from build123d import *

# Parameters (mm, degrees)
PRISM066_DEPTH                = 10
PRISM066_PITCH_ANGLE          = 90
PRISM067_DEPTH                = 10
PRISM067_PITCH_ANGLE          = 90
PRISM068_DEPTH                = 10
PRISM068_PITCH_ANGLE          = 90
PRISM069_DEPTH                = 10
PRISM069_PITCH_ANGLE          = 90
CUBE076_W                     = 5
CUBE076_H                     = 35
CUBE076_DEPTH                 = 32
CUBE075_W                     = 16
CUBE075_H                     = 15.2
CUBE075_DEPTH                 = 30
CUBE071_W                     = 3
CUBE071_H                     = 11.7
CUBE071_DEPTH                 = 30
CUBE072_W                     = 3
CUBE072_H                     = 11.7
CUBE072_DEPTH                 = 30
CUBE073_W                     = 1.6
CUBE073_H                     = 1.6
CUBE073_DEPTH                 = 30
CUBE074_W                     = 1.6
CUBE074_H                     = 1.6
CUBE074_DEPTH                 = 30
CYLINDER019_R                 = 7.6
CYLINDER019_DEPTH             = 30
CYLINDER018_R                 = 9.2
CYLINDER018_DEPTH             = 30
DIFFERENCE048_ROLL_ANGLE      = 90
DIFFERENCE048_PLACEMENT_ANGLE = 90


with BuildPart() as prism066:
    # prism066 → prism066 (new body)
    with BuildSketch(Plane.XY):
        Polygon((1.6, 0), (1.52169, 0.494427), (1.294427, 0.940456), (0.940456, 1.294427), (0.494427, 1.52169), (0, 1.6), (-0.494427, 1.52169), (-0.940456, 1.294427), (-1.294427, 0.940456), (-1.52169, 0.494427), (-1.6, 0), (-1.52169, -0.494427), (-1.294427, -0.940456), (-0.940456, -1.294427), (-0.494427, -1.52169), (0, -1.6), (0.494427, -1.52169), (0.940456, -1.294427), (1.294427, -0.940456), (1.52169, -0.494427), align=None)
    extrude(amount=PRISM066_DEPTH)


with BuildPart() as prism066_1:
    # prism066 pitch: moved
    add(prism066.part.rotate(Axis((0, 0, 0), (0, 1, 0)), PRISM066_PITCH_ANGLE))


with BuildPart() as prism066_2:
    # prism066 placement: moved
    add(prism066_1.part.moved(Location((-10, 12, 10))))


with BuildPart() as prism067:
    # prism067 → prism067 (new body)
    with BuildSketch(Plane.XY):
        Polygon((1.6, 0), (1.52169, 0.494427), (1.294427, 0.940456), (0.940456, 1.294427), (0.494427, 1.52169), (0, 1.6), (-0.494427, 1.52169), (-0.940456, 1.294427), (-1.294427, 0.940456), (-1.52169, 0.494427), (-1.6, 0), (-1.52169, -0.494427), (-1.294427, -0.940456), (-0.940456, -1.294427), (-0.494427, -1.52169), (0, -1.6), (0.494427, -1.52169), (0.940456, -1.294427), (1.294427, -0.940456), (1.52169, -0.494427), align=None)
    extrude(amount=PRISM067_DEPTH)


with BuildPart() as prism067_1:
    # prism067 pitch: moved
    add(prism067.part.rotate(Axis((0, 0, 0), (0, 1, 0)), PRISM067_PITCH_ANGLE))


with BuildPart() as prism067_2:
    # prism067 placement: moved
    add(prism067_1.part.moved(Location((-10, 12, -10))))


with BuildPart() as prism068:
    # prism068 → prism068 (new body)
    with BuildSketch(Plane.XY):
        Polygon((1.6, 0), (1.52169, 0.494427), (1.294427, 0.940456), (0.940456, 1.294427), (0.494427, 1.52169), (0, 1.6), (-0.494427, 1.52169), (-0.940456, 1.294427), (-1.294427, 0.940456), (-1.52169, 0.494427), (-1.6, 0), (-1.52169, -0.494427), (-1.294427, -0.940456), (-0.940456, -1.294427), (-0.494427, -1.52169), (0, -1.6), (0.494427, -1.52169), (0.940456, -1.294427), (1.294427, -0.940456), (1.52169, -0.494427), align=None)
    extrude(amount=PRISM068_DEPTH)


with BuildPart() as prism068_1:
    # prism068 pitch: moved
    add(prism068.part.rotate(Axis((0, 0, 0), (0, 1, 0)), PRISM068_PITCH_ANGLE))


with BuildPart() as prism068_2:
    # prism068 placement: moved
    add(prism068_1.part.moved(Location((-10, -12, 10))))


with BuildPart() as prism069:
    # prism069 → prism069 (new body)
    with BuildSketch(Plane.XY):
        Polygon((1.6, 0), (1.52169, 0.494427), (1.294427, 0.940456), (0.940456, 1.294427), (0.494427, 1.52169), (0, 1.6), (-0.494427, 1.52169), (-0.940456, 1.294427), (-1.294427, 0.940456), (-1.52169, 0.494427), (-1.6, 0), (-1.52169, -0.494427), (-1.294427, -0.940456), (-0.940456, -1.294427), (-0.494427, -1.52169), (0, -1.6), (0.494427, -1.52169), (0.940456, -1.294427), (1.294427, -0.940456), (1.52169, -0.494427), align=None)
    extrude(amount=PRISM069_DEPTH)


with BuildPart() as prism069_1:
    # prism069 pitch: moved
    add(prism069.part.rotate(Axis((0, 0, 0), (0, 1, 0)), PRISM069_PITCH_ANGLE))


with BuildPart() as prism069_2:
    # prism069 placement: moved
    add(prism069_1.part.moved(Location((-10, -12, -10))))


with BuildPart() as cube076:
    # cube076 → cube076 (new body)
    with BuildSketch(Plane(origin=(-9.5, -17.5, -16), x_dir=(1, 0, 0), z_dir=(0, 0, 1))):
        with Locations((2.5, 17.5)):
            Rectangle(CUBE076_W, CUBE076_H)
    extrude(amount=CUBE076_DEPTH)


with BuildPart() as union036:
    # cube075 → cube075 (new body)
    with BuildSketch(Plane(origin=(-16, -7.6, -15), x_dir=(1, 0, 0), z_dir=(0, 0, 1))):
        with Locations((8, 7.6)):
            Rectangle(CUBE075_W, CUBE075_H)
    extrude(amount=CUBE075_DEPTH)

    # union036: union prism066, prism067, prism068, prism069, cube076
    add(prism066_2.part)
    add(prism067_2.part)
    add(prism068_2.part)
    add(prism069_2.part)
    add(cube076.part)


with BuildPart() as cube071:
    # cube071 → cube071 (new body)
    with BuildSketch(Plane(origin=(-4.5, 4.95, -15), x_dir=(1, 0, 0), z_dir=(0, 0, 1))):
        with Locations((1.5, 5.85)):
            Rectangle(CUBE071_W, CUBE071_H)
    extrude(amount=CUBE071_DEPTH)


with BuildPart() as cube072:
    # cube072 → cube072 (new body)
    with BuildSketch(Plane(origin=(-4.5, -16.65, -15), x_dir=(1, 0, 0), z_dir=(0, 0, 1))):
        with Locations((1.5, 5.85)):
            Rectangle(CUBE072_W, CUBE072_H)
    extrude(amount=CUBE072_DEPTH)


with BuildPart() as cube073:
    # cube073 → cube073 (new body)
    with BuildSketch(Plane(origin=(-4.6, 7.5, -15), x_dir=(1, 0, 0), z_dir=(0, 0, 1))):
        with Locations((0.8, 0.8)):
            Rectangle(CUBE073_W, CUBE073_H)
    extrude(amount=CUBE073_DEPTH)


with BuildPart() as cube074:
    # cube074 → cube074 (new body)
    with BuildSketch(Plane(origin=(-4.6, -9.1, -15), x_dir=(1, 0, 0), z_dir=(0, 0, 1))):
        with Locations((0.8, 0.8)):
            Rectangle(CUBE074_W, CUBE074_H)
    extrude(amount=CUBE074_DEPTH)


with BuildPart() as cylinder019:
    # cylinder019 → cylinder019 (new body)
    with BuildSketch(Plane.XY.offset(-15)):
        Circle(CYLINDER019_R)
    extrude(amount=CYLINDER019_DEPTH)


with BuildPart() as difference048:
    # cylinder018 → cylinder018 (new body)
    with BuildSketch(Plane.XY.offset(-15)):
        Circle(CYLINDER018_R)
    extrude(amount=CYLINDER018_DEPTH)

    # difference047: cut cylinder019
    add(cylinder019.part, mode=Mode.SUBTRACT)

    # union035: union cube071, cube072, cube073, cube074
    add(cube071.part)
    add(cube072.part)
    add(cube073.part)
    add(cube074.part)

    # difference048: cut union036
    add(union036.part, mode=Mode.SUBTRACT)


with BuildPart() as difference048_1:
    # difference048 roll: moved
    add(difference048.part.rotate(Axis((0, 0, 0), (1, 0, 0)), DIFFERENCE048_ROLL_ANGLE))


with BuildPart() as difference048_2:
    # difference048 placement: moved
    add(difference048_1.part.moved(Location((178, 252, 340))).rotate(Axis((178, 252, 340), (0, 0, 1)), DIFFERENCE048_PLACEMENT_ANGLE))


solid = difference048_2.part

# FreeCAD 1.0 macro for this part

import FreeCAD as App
import Part
import Sketcher

V = App.Vector
Q = App.Units.Quantity

doc = App.newDocument("Part")
body = doc.addObject("PartDesign::Body", "Body")

sketch1 = body.newObject("Sketcher::SketchObject", "Sketch")
sketch1.AttachmentSupport = (doc.getObject("XY_Plane"), [""])
sketch1.MapMode = "FlatFace"
sketch1.addGeometry(Part.LineSegment(V(1.6, 0, 0), V(1.52169, 0.494427, 0)), False)
sketch1.addGeometry(Part.LineSegment(V(1.52169, 0.494427, 0), V(1.294427, 0.940456, 0)), False)
sketch1.addGeometry(Part.LineSegment(V(1.294427, 0.940456, 0), V(0.940456, 1.294427, 0)), False)
sketch1.addGeometry(Part.LineSegment(V(0.940456, 1.294427, 0), V(0.494427, 1.52169, 0)), False)
sketch1.addGeometry(Part.LineSegment(V(0.494427, 1.52169, 0), V(0, 1.6, 0)), False)
sketch1.addGeometry(Part.LineSegment(V(0, 1.6, 0), V(-0.494427, 1.52169, 0)), False)
sketch1.addGeometry(Part.LineSegment(V(-0.494427, 1.52169, 0), V(-0.940456, 1.294427, 0)), False)
sketch1.addGeometry(Part.LineSegment(V(-0.940456, 1.294427, 0), V(-1.294427, 0.940456, 0)), False)
sketch1.addGeometry(Part.LineSegment(V(-1.294427, 0.940456, 0), V(-1.52169, 0.494427, 0)), False)
sketch1.addGeometry(Part.LineSegment(V(-1.52169, 0.494427, 0), V(-1.6, 0, 0)), False)
sketch1.addGeometry(Part.LineSegment(V(-1.6, 0, 0), V(-1.52169, -0.494427, 0)), False)
sketch1.addGeometry(Part.LineSegment(V(-1.52169, -0.494427, 0), V(-1.294427, -0.940456, 0)), False)
sketch1.addGeometry(Part.LineSegment(V(-1.294427, -0.940456, 0), V(-0.940456, -1.294427, 0)), False)
sketch1.addGeometry(Part.LineSegment(V(-0.940456, -1.294427, 0), V(-0.494427, -1.52169, 0)), False)
sketch1.addGeometry(Part.LineSegment(V(-0.494427, -1.52169, 0), V(0, -1.6, 0)), False)
sketch1.addGeometry(Part.LineSegment(V(0, -1.6, 0), V(0.494427, -1.52169, 0)), False)
sketch1.addGeometry(Part.LineSegment(V(0.494427, -1.52169, 0), V(0.940456, -1.294427, 0)), False)
sketch1.addGeometry(Part.LineSegment(V(0.940456, -1.294427, 0), V(1.294427, -0.940456, 0)), False)
sketch1.addGeometry(Part.LineSegment(V(1.294427, -0.940456, 0), V(1.52169, -0.494427, 0)), False)
sketch1.addGeometry(Part.LineSegment(V(1.52169, -0.494427, 0), V(1.6, 0, 0)), False)
sketch1.addConstraint(Sketcher.Constraint("Coincident", 0, 2, 1, 1))
sketch1.addConstraint(Sketcher.Constraint("Coincident", 1, 2, 2, 1))
sketch1.addConstraint(Sketcher.Constraint("Coincident", 2, 2, 3, 1))
sketch1.addConstraint(Sketcher.Constraint("Coincident", 3, 2, 4, 1))
sketch1.addConstraint(Sketcher.Constraint("Coincident", 4, 2, 5, 1))
sketch1.addConstraint(Sketcher.Constraint("Coincident", 5, 2, 6, 1))
sketch1.addConstraint(Sketcher.Constraint("Coincident", 6, 2, 7, 1))
sketch1.addConstraint(Sketcher.Constraint("Coincident", 7, 2, 8, 1))
sketch1.addConstraint(Sketcher.Constraint("Coincident", 8, 2, 9, 1))
sketch1.addConstraint(Sketcher.Constraint("Coincident", 9, 2, 10, 1))
sketch1.addConstraint(Sketcher.Constraint("Coincident", 10, 2, 11, 1))
sketch1.addConstraint(Sketcher.Constraint("Coincident", 11, 2, 12, 1))
sketch1.addConstraint(Sketcher.Constraint("Coincident", 12, 2, 13, 1))
sketch1.addConstraint(Sketcher.Constraint("Coincident", 13, 2, 14, 1))
sketch1.addConstraint(Sketcher.Constraint("Coincident", 14, 2, 15, 1))
sketch1.addConstraint(Sketcher.Constraint("Coincident", 15, 2, 16, 1))
sketch1.addConstraint(Sketcher.Constraint("Coincident", 16, 2, 17, 1))
sketch1.addConstraint(Sketcher.Constraint("Coincident", 17, 2, 18, 1))
sketch1.addConstraint(Sketcher.Constraint("Coincident", 18, 2, 19, 1))
sketch1.addConstraint(Sketcher.Constraint("Coincident", 19, 2, 0, 1))
sketch1.addConstraint(Sketcher.Constraint("Symmetric", 0, 2, 10, 2, -1, 1))
sketch1.addConstraint(Sketcher.Constraint("Symmetric", 1, 2, 11, 2, -1, 1))
sketch1.addConstraint(Sketcher.Constraint("Symmetric", 2, 2, 12, 2, -1, 1))
sketch1.addConstraint(Sketcher.Constraint("Symmetric", 3, 2, 13, 2, -1, 1))
sketch1.addConstraint(Sketcher.Constraint("Symmetric", 4, 2, 14, 2, -1, 1))
sketch1.addConstraint(Sketcher.Constraint("Symmetric", 5, 2, 15, 2, -1, 1))
sketch1.addConstraint(Sketcher.Constraint("Symmetric", 6, 2, 16, 2, -1, 1))
sketch1.addConstraint(Sketcher.Constraint("Symmetric", 7, 2, 17, 2, -1, 1))
sketch1.addConstraint(Sketcher.Constraint("Symmetric", 8, 2, 18, 2, -1, 1))
sketch1.addConstraint(Sketcher.Constraint("Symmetric", 9, 2, 19, 2, -1, 1))
sketch1.addConstraint(Sketcher.Constraint("Symmetric", 3, 2, 5, 2, -2))
sketch1.addConstraint(Sketcher.Constraint("Symmetric", 2, 2, 6, 2, -2))
sketch1.addConstraint(Sketcher.Constraint("Symmetric", 1, 2, 7, 2, -2))
sketch1.addConstraint(Sketcher.Constraint("Symmetric", 0, 2, 8, 2, -2))
sketch1.addConstraint(Sketcher.Constraint("PointOnObject", 4, 2, -2))
sketch1.addConstraint(Sketcher.Constraint("PointOnObject", 9, 2, -1))
sketch1.addConstraint(Sketcher.Constraint("Perpendicular", 0, 5))
sketch1.addConstraint(Sketcher.Constraint("Perpendicular", 1, 6))
sketch1.addConstraint(Sketcher.Constraint("Perpendicular", 2, 7))
sketch1.addConstraint(Sketcher.Constraint("Equal", 0, 1))
sketch1.addConstraint(Sketcher.Constraint("Equal", 1, 2))
sketch1.addConstraint(Sketcher.Constraint("Equal", 2, 3))
sketch1.addConstraint(Sketcher.Constraint("Equal", 3, 4))
sketch1.addConstraint(Sketcher.Constraint("Angle", 1, Q("116.999987 deg")))
sketch1.addConstraint(Sketcher.Constraint("DistanceY", -1, 1, 4, 2, Q("1.6 mm")))
sketch1.addConstraint(Sketcher.Constraint("DistanceY", 0, 2, 2, 2, Q("0.8 mm")))
pad1 = body.newObject("PartDesign::Pad", "Pad")
pad1.Profile = sketch1
pad1.Length = 10
body2 = doc.addObject("PartDesign::Body", "Body001")
doc.recompute()

body.Placement = App.Placement(V(0, 0, 0), App.Rotation(V(0, 1, 0), 90))
boolean = body2.newObject("PartDesign::Boolean", "Boolean")
boolean.Type = "Fuse"
boolean.addObjects([body])
body3 = doc.addObject("PartDesign::Body", "Body002")
doc.recompute()

body2.Placement = App.Placement(V(-10, 12, 10), App.Rotation(V(0, 0, 1), 0))
boolean2 = body3.newObject("PartDesign::Boolean", "Boolean001")
boolean2.Type = "Fuse"
boolean2.addObjects([body2])
body4 = doc.addObject("PartDesign::Body", "Body003")

sketch2 = body4.newObject("Sketcher::SketchObject", "Sketch001")
sketch2.AttachmentSupport = (doc.getObject("XY_Plane003"), [""])
sketch2.MapMode = "FlatFace"
sketch2.addGeometry(Part.LineSegment(V(1.6, 0, 0), V(1.52169, 0.494427, 0)), False)
sketch2.addGeometry(Part.LineSegment(V(1.52169, 0.494427, 0), V(1.294427, 0.940456, 0)), False)
sketch2.addGeometry(Part.LineSegment(V(1.294427, 0.940456, 0), V(0.940456, 1.294427, 0)), False)
sketch2.addGeometry(Part.LineSegment(V(0.940456, 1.294427, 0), V(0.494427, 1.52169, 0)), False)
sketch2.addGeometry(Part.LineSegment(V(0.494427, 1.52169, 0), V(0, 1.6, 0)), False)
sketch2.addGeometry(Part.LineSegment(V(0, 1.6, 0), V(-0.494427, 1.52169, 0)), False)
sketch2.addGeometry(Part.LineSegment(V(-0.494427, 1.52169, 0), V(-0.940456, 1.294427, 0)), False)
sketch2.addGeometry(Part.LineSegment(V(-0.940456, 1.294427, 0), V(-1.294427, 0.940456, 0)), False)
sketch2.addGeometry(Part.LineSegment(V(-1.294427, 0.940456, 0), V(-1.52169, 0.494427, 0)), False)
sketch2.addGeometry(Part.LineSegment(V(-1.52169, 0.494427, 0), V(-1.6, 0, 0)), False)
sketch2.addGeometry(Part.LineSegment(V(-1.6, 0, 0), V(-1.52169, -0.494427, 0)), False)
sketch2.addGeometry(Part.LineSegment(V(-1.52169, -0.494427, 0), V(-1.294427, -0.940456, 0)), False)
sketch2.addGeometry(Part.LineSegment(V(-1.294427, -0.940456, 0), V(-0.940456, -1.294427, 0)), False)
sketch2.addGeometry(Part.LineSegment(V(-0.940456, -1.294427, 0), V(-0.494427, -1.52169, 0)), False)
sketch2.addGeometry(Part.LineSegment(V(-0.494427, -1.52169, 0), V(0, -1.6, 0)), False)
sketch2.addGeometry(Part.LineSegment(V(0, -1.6, 0), V(0.494427, -1.52169, 0)), False)
sketch2.addGeometry(Part.LineSegment(V(0.494427, -1.52169, 0), V(0.940456, -1.294427, 0)), False)
sketch2.addGeometry(Part.LineSegment(V(0.940456, -1.294427, 0), V(1.294427, -0.940456, 0)), False)
sketch2.addGeometry(Part.LineSegment(V(1.294427, -0.940456, 0), V(1.52169, -0.494427, 0)), False)
sketch2.addGeometry(Part.LineSegment(V(1.52169, -0.494427, 0), V(1.6, 0, 0)), False)
sketch2.addConstraint(Sketcher.Constraint("Coincident", 0, 2, 1, 1))
sketch2.addConstraint(Sketcher.Constraint("Coincident", 1, 2, 2, 1))
sketch2.addConstraint(Sketcher.Constraint("Coincident", 2, 2, 3, 1))
sketch2.addConstraint(Sketcher.Constraint("Coincident", 3, 2, 4, 1))
sketch2.addConstraint(Sketcher.Constraint("Coincident", 4, 2, 5, 1))
sketch2.addConstraint(Sketcher.Constraint("Coincident", 5, 2, 6, 1))
sketch2.addConstraint(Sketcher.Constraint("Coincident", 6, 2, 7, 1))
sketch2.addConstraint(Sketcher.Constraint("Coincident", 7, 2, 8, 1))
sketch2.addConstraint(Sketcher.Constraint("Coincident", 8, 2, 9, 1))
sketch2.addConstraint(Sketcher.Constraint("Coincident", 9, 2, 10, 1))
sketch2.addConstraint(Sketcher.Constraint("Coincident", 10, 2, 11, 1))
sketch2.addConstraint(Sketcher.Constraint("Coincident", 11, 2, 12, 1))
sketch2.addConstraint(Sketcher.Constraint("Coincident", 12, 2, 13, 1))
sketch2.addConstraint(Sketcher.Constraint("Coincident", 13, 2, 14, 1))
sketch2.addConstraint(Sketcher.Constraint("Coincident", 14, 2, 15, 1))
sketch2.addConstraint(Sketcher.Constraint("Coincident", 15, 2, 16, 1))
sketch2.addConstraint(Sketcher.Constraint("Coincident", 16, 2, 17, 1))
sketch2.addConstraint(Sketcher.Constraint("Coincident", 17, 2, 18, 1))
sketch2.addConstraint(Sketcher.Constraint("Coincident", 18, 2, 19, 1))
sketch2.addConstraint(Sketcher.Constraint("Coincident", 19, 2, 0, 1))
sketch2.addConstraint(Sketcher.Constraint("Symmetric", 0, 2, 10, 2, -1, 1))
sketch2.addConstraint(Sketcher.Constraint("Symmetric", 1, 2, 11, 2, -1, 1))
sketch2.addConstraint(Sketcher.Constraint("Symmetric", 2, 2, 12, 2, -1, 1))
sketch2.addConstraint(Sketcher.Constraint("Symmetric", 3, 2, 13, 2, -1, 1))
sketch2.addConstraint(Sketcher.Constraint("Symmetric", 4, 2, 14, 2, -1, 1))
sketch2.addConstraint(Sketcher.Constraint("Symmetric", 5, 2, 15, 2, -1, 1))
sketch2.addConstraint(Sketcher.Constraint("Symmetric", 6, 2, 16, 2, -1, 1))
sketch2.addConstraint(Sketcher.Constraint("Symmetric", 7, 2, 17, 2, -1, 1))
sketch2.addConstraint(Sketcher.Constraint("Symmetric", 8, 2, 18, 2, -1, 1))
sketch2.addConstraint(Sketcher.Constraint("Symmetric", 9, 2, 19, 2, -1, 1))
sketch2.addConstraint(Sketcher.Constraint("Symmetric", 3, 2, 5, 2, -2))
sketch2.addConstraint(Sketcher.Constraint("Symmetric", 2, 2, 6, 2, -2))
sketch2.addConstraint(Sketcher.Constraint("Symmetric", 1, 2, 7, 2, -2))
sketch2.addConstraint(Sketcher.Constraint("Symmetric", 0, 2, 8, 2, -2))
sketch2.addConstraint(Sketcher.Constraint("PointOnObject", 4, 2, -2))
sketch2.addConstraint(Sketcher.Constraint("PointOnObject", 9, 2, -1))
sketch2.addConstraint(Sketcher.Constraint("Perpendicular", 0, 5))
sketch2.addConstraint(Sketcher.Constraint("Perpendicular", 1, 6))
sketch2.addConstraint(Sketcher.Constraint("Perpendicular", 2, 7))
sketch2.addConstraint(Sketcher.Constraint("Equal", 0, 1))
sketch2.addConstraint(Sketcher.Constraint("Equal", 1, 2))
sketch2.addConstraint(Sketcher.Constraint("Equal", 2, 3))
sketch2.addConstraint(Sketcher.Constraint("Equal", 3, 4))
sketch2.addConstraint(Sketcher.Constraint("Angle", 1, Q("116.999987 deg")))
sketch2.addConstraint(Sketcher.Constraint("DistanceY", -1, 1, 4, 2, Q("1.6 mm")))
sketch2.addConstraint(Sketcher.Constraint("DistanceY", 0, 2, 2, 2, Q("0.8 mm")))
pad2 = body4.newObject("PartDesign::Pad", "Pad001")
pad2.Profile = sketch2
pad2.Length = 10
body5 = doc.addObject("PartDesign::Body", "Body004")
doc.recompute()

body4.Placement = App.Placement(V(0, 0, 0), App.Rotation(V(0, 1, 0), 90))
boolean3 = body5.newObject("PartDesign::Boolean", "Boolean002")
boolean3.Type = "Fuse"
boolean3.addObjects([body4])
body6 = doc.addObject("PartDesign::Body", "Body005")
doc.recompute()

body5.Placement = App.Placement(V(-10, 12, -10), App.Rotation(V(0, 0, 1), 0))
boolean4 = body6.newObject("PartDesign::Boolean", "Boolean003")
boolean4.Type = "Fuse"
boolean4.addObjects([body5])
body7 = doc.addObject("PartDesign::Body", "Body006")

sketch3 = body7.newObject("Sketcher::SketchObject", "Sketch002")
sketch3.AttachmentSupport = (doc.getObject("XY_Plane006"), [""])
sketch3.MapMode = "FlatFace"
sketch3.addGeometry(Part.LineSegment(V(1.6, 0, 0), V(1.52169, 0.494427, 0)), False)
sketch3.addGeometry(Part.LineSegment(V(1.52169, 0.494427, 0), V(1.294427, 0.940456, 0)), False)
sketch3.addGeometry(Part.LineSegment(V(1.294427, 0.940456, 0), V(0.940456, 1.294427, 0)), False)
sketch3.addGeometry(Part.LineSegment(V(0.940456, 1.294427, 0), V(0.494427, 1.52169, 0)), False)
sketch3.addGeometry(Part.LineSegment(V(0.494427, 1.52169, 0), V(0, 1.6, 0)), False)
sketch3.addGeometry(Part.LineSegment(V(0, 1.6, 0), V(-0.494427, 1.52169, 0)), False)
sketch3.addGeometry(Part.LineSegment(V(-0.494427, 1.52169, 0), V(-0.940456, 1.294427, 0)), False)
sketch3.addGeometry(Part.LineSegment(V(-0.940456, 1.294427, 0), V(-1.294427, 0.940456, 0)), False)
sketch3.addGeometry(Part.LineSegment(V(-1.294427, 0.940456, 0), V(-1.52169, 0.494427, 0)), False)
sketch3.addGeometry(Part.LineSegment(V(-1.52169, 0.494427, 0), V(-1.6, 0, 0)), False)
sketch3.addGeometry(Part.LineSegment(V(-1.6, 0, 0), V(-1.52169, -0.494427, 0)), False)
sketch3.addGeometry(Part.LineSegment(V(-1.52169, -0.494427, 0), V(-1.294427, -0.940456, 0)), False)
sketch3.addGeometry(Part.LineSegment(V(-1.294427, -0.940456, 0), V(-0.940456, -1.294427, 0)), False)
sketch3.addGeometry(Part.LineSegment(V(-0.940456, -1.294427, 0), V(-0.494427, -1.52169, 0)), False)
sketch3.addGeometry(Part.LineSegment(V(-0.494427, -1.52169, 0), V(0, -1.6, 0)), False)
sketch3.addGeometry(Part.LineSegment(V(0, -1.6, 0), V(0.494427, -1.52169, 0)), False)
sketch3.addGeometry(Part.LineSegment(V(0.494427, -1.52169, 0), V(0.940456, -1.294427, 0)), False)
sketch3.addGeometry(Part.LineSegment(V(0.940456, -1.294427, 0), V(1.294427, -0.940456, 0)), False)
sketch3.addGeometry(Part.LineSegment(V(1.294427, -0.940456, 0), V(1.52169, -0.494427, 0)), False)
sketch3.addGeometry(Part.LineSegment(V(1.52169, -0.494427, 0), V(1.6, 0, 0)), False)
sketch3.addConstraint(Sketcher.Constraint("Coincident", 0, 2, 1, 1))
sketch3.addConstraint(Sketcher.Constraint("Coincident", 1, 2, 2, 1))
sketch3.addConstraint(Sketcher.Constraint("Coincident", 2, 2, 3, 1))
sketch3.addConstraint(Sketcher.Constraint("Coincident", 3, 2, 4, 1))
sketch3.addConstraint(Sketcher.Constraint("Coincident", 4, 2, 5, 1))
sketch3.addConstraint(Sketcher.Constraint("Coincident", 5, 2, 6, 1))
sketch3.addConstraint(Sketcher.Constraint("Coincident", 6, 2, 7, 1))
sketch3.addConstraint(Sketcher.Constraint("Coincident", 7, 2, 8, 1))
sketch3.addConstraint(Sketcher.Constraint("Coincident", 8, 2, 9, 1))
sketch3.addConstraint(Sketcher.Constraint("Coincident", 9, 2, 10, 1))
sketch3.addConstraint(Sketcher.Constraint("Coincident", 10, 2, 11, 1))
sketch3.addConstraint(Sketcher.Constraint("Coincident", 11, 2, 12, 1))
sketch3.addConstraint(Sketcher.Constraint("Coincident", 12, 2, 13, 1))
sketch3.addConstraint(Sketcher.Constraint("Coincident", 13, 2, 14, 1))
sketch3.addConstraint(Sketcher.Constraint("Coincident", 14, 2, 15, 1))
sketch3.addConstraint(Sketcher.Constraint("Coincident", 15, 2, 16, 1))
sketch3.addConstraint(Sketcher.Constraint("Coincident", 16, 2, 17, 1))
sketch3.addConstraint(Sketcher.Constraint("Coincident", 17, 2, 18, 1))
sketch3.addConstraint(Sketcher.Constraint("Coincident", 18, 2, 19, 1))
sketch3.addConstraint(Sketcher.Constraint("Coincident", 19, 2, 0, 1))
sketch3.addConstraint(Sketcher.Constraint("Symmetric", 0, 2, 10, 2, -1, 1))
sketch3.addConstraint(Sketcher.Constraint("Symmetric", 1, 2, 11, 2, -1, 1))
sketch3.addConstraint(Sketcher.Constraint("Symmetric", 2, 2, 12, 2, -1, 1))
sketch3.addConstraint(Sketcher.Constraint("Symmetric", 3, 2, 13, 2, -1, 1))
sketch3.addConstraint(Sketcher.Constraint("Symmetric", 4, 2, 14, 2, -1, 1))
sketch3.addConstraint(Sketcher.Constraint("Symmetric", 5, 2, 15, 2, -1, 1))
sketch3.addConstraint(Sketcher.Constraint("Symmetric", 6, 2, 16, 2, -1, 1))
sketch3.addConstraint(Sketcher.Constraint("Symmetric", 7, 2, 17, 2, -1, 1))
sketch3.addConstraint(Sketcher.Constraint("Symmetric", 8, 2, 18, 2, -1, 1))
sketch3.addConstraint(Sketcher.Constraint("Symmetric", 9, 2, 19, 2, -1, 1))
sketch3.addConstraint(Sketcher.Constraint("Symmetric", 3, 2, 5, 2, -2))
sketch3.addConstraint(Sketcher.Constraint("Symmetric", 2, 2, 6, 2, -2))
sketch3.addConstraint(Sketcher.Constraint("Symmetric", 1, 2, 7, 2, -2))
sketch3.addConstraint(Sketcher.Constraint("Symmetric", 0, 2, 8, 2, -2))
sketch3.addConstraint(Sketcher.Constraint("PointOnObject", 4, 2, -2))
sketch3.addConstraint(Sketcher.Constraint("PointOnObject", 9, 2, -1))
sketch3.addConstraint(Sketcher.Constraint("Perpendicular", 0, 5))
sketch3.addConstraint(Sketcher.Constraint("Perpendicular", 1, 6))
sketch3.addConstraint(Sketcher.Constraint("Perpendicular", 2, 7))
sketch3.addConstraint(Sketcher.Constraint("Equal", 0, 1))
sketch3.addConstraint(Sketcher.Constraint("Equal", 1, 2))
sketch3.addConstraint(Sketcher.Constraint("Equal", 2, 3))
sketch3.addConstraint(Sketcher.Constraint("Equal", 3, 4))
sketch3.addConstraint(Sketcher.Constraint("Angle", 1, Q("116.999987 deg")))
sketch3.addConstraint(Sketcher.Constraint("DistanceY", -1, 1, 4, 2, Q("1.6 mm")))
sketch3.addConstraint(Sketcher.Constraint("DistanceY", 0, 2, 2, 2, Q("0.8 mm")))
pad3 = body7.newObject("PartDesign::Pad", "Pad002")
pad3.Profile = sketch3
pad3.Length = 10
body8 = doc.addObject("PartDesign::Body", "Body007")
doc.recompute()

body7.Placement = App.Placement(V(0, 0, 0), App.Rotation(V(0, 1, 0), 90))
boolean5 = body8.newObject("PartDesign::Boolean", "Boolean004")
boolean5.Type = "Fuse"
boolean5.addObjects([body7])
body9 = doc.addObject("PartDesign::Body", "Body008")
doc.recompute()

body8.Placement = App.Placement(V(-10, -12, 10), App.Rotation(V(0, 0, 1), 0))
boolean6 = body9.newObject("PartDesign::Boolean", "Boolean005")
boolean6.Type = "Fuse"
boolean6.addObjects([body8])
body10 = doc.addObject("PartDesign::Body", "Body009")

sketch4 = body10.newObject("Sketcher::SketchObject", "Sketch003")
sketch4.AttachmentSupport = (doc.getObject("XY_Plane009"), [""])
sketch4.MapMode = "FlatFace"
sketch4.addGeometry(Part.LineSegment(V(1.6, 0, 0), V(1.52169, 0.494427, 0)), False)
sketch4.addGeometry(Part.LineSegment(V(1.52169, 0.494427, 0), V(1.294427, 0.940456, 0)), False)
sketch4.addGeometry(Part.LineSegment(V(1.294427, 0.940456, 0), V(0.940456, 1.294427, 0)), False)
sketch4.addGeometry(Part.LineSegment(V(0.940456, 1.294427, 0), V(0.494427, 1.52169, 0)), False)
sketch4.addGeometry(Part.LineSegment(V(0.494427, 1.52169, 0), V(0, 1.6, 0)), False)
sketch4.addGeometry(Part.LineSegment(V(0, 1.6, 0), V(-0.494427, 1.52169, 0)), False)
sketch4.addGeometry(Part.LineSegment(V(-0.494427, 1.52169, 0), V(-0.940456, 1.294427, 0)), False)
sketch4.addGeometry(Part.LineSegment(V(-0.940456, 1.294427, 0), V(-1.294427, 0.940456, 0)), False)
sketch4.addGeometry(Part.LineSegment(V(-1.294427, 0.940456, 0), V(-1.52169, 0.494427, 0)), False)
sketch4.addGeometry(Part.LineSegment(V(-1.52169, 0.494427, 0), V(-1.6, 0, 0)), False)
sketch4.addGeometry(Part.LineSegment(V(-1.6, 0, 0), V(-1.52169, -0.494427, 0)), False)
sketch4.addGeometry(Part.LineSegment(V(-1.52169, -0.494427, 0), V(-1.294427, -0.940456, 0)), False)
sketch4.addGeometry(Part.LineSegment(V(-1.294427, -0.940456, 0), V(-0.940456, -1.294427, 0)), False)
sketch4.addGeometry(Part.LineSegment(V(-0.940456, -1.294427, 0), V(-0.494427, -1.52169, 0)), False)
sketch4.addGeometry(Part.LineSegment(V(-0.494427, -1.52169, 0), V(0, -1.6, 0)), False)
sketch4.addGeometry(Part.LineSegment(V(0, -1.6, 0), V(0.494427, -1.52169, 0)), False)
sketch4.addGeometry(Part.LineSegment(V(0.494427, -1.52169, 0), V(0.940456, -1.294427, 0)), False)
sketch4.addGeometry(Part.LineSegment(V(0.940456, -1.294427, 0), V(1.294427, -0.940456, 0)), False)
sketch4.addGeometry(Part.LineSegment(V(1.294427, -0.940456, 0), V(1.52169, -0.494427, 0)), False)
sketch4.addGeometry(Part.LineSegment(V(1.52169, -0.494427, 0), V(1.6, 0, 0)), False)
sketch4.addConstraint(Sketcher.Constraint("Coincident", 0, 2, 1, 1))
sketch4.addConstraint(Sketcher.Constraint("Coincident", 1, 2, 2, 1))
sketch4.addConstraint(Sketcher.Constraint("Coincident", 2, 2, 3, 1))
sketch4.addConstraint(Sketcher.Constraint("Coincident", 3, 2, 4, 1))
sketch4.addConstraint(Sketcher.Constraint("Coincident", 4, 2, 5, 1))
sketch4.addConstraint(Sketcher.Constraint("Coincident", 5, 2, 6, 1))
sketch4.addConstraint(Sketcher.Constraint("Coincident", 6, 2, 7, 1))
sketch4.addConstraint(Sketcher.Constraint("Coincident", 7, 2, 8, 1))
sketch4.addConstraint(Sketcher.Constraint("Coincident", 8, 2, 9, 1))
sketch4.addConstraint(Sketcher.Constraint("Coincident", 9, 2, 10, 1))
sketch4.addConstraint(Sketcher.Constraint("Coincident", 10, 2, 11, 1))
sketch4.addConstraint(Sketcher.Constraint("Coincident", 11, 2, 12, 1))
sketch4.addConstraint(Sketcher.Constraint("Coincident", 12, 2, 13, 1))
sketch4.addConstraint(Sketcher.Constraint("Coincident", 13, 2, 14, 1))
sketch4.addConstraint(Sketcher.Constraint("Coincident", 14, 2, 15, 1))
sketch4.addConstraint(Sketcher.Constraint("Coincident", 15, 2, 16, 1))
sketch4.addConstraint(Sketcher.Constraint("Coincident", 16, 2, 17, 1))
sketch4.addConstraint(Sketcher.Constraint("Coincident", 17, 2, 18, 1))
sketch4.addConstraint(Sketcher.Constraint("Coincident", 18, 2, 19, 1))
sketch4.addConstraint(Sketcher.Constraint("Coincident", 19, 2, 0, 1))
sketch4.addConstraint(Sketcher.Constraint("Symmetric", 0, 2, 10, 2, -1, 1))
sketch4.addConstraint(Sketcher.Constraint("Symmetric", 1, 2, 11, 2, -1, 1))
sketch4.addConstraint(Sketcher.Constraint("Symmetric", 2, 2, 12, 2, -1, 1))
sketch4.addConstraint(Sketcher.Constraint("Symmetric", 3, 2, 13, 2, -1, 1))
sketch4.addConstraint(Sketcher.Constraint("Symmetric", 4, 2, 14, 2, -1, 1))
sketch4.addConstraint(Sketcher.Constraint("Symmetric", 5, 2, 15, 2, -1, 1))
sketch4.addConstraint(Sketcher.Constraint("Symmetric", 6, 2, 16, 2, -1, 1))
sketch4.addConstraint(Sketcher.Constraint("Symmetric", 7, 2, 17, 2, -1, 1))
sketch4.addConstraint(Sketcher.Constraint("Symmetric", 8, 2, 18, 2, -1, 1))
sketch4.addConstraint(Sketcher.Constraint("Symmetric", 9, 2, 19, 2, -1, 1))
sketch4.addConstraint(Sketcher.Constraint("Symmetric", 3, 2, 5, 2, -2))
sketch4.addConstraint(Sketcher.Constraint("Symmetric", 2, 2, 6, 2, -2))
sketch4.addConstraint(Sketcher.Constraint("Symmetric", 1, 2, 7, 2, -2))
sketch4.addConstraint(Sketcher.Constraint("Symmetric", 0, 2, 8, 2, -2))
sketch4.addConstraint(Sketcher.Constraint("PointOnObject", 4, 2, -2))
sketch4.addConstraint(Sketcher.Constraint("PointOnObject", 9, 2, -1))
sketch4.addConstraint(Sketcher.Constraint("Perpendicular", 0, 5))
sketch4.addConstraint(Sketcher.Constraint("Perpendicular", 1, 6))
sketch4.addConstraint(Sketcher.Constraint("Perpendicular", 2, 7))
sketch4.addConstraint(Sketcher.Constraint("Equal", 0, 1))
sketch4.addConstraint(Sketcher.Constraint("Equal", 1, 2))
sketch4.addConstraint(Sketcher.Constraint("Equal", 2, 3))
sketch4.addConstraint(Sketcher.Constraint("Equal", 3, 4))
sketch4.addConstraint(Sketcher.Constraint("Angle", 1, Q("116.999987 deg")))
sketch4.addConstraint(Sketcher.Constraint("DistanceY", -1, 1, 4, 2, Q("1.6 mm")))
sketch4.addConstraint(Sketcher.Constraint("DistanceY", 0, 2, 2, 2, Q("0.8 mm")))
pad4 = body10.newObject("PartDesign::Pad", "Pad003")
pad4.Profile = sketch4
pad4.Length = 10
body11 = doc.addObject("PartDesign::Body", "Body010")
doc.recompute()

body10.Placement = App.Placement(V(0, 0, 0), App.Rotation(V(0, 1, 0), 90))
boolean7 = body11.newObject("PartDesign::Boolean", "Boolean006")
boolean7.Type = "Fuse"
boolean7.addObjects([body10])
body12 = doc.addObject("PartDesign::Body", "Body011")
doc.recompute()

body11.Placement = App.Placement(V(-10, -12, -10), App.Rotation(V(0, 0, 1), 0))
boolean8 = body12.newObject("PartDesign::Boolean", "Boolean007")
boolean8.Type = "Fuse"
boolean8.addObjects([body11])
body13 = doc.addObject("PartDesign::Body", "Body012")

sketch5 = body13.newObject("Sketcher::SketchObject", "Sketch004")
sketch5.AttachmentSupport = (doc.getObject("XY_Plane012"), [""])
sketch5.MapMode = "FlatFace"
sketch5.AttachmentOffset = App.Placement(V(0, 0, -16), App.Rotation())
sketch5.addGeometry(Part.LineSegment(V(-9.5, 17.5, 0), V(-9.5, -17.5, 0)), False)
sketch5.addGeometry(Part.LineSegment(V(-9.5, -17.5, 0), V(-4.5, -17.5, 0)), False)
sketch5.addGeometry(Part.LineSegment(V(-4.5, -17.5, 0), V(-4.5, 17.5, 0)), False)
sketch5.addGeometry(Part.LineSegment(V(-4.5, 17.5, 0), V(-9.5, 17.5, 0)), False)
sketch5.addConstraint(Sketcher.Constraint("Coincident", 0, 2, 1, 1))
sketch5.addConstraint(Sketcher.Constraint("Coincident", 1, 2, 2, 1))
sketch5.addConstraint(Sketcher.Constraint("Coincident", 2, 2, 3, 1))
sketch5.addConstraint(Sketcher.Constraint("Coincident", 3, 2, 0, 1))
sketch5.addConstraint(Sketcher.Constraint("Vertical", 0))
sketch5.addConstraint(Sketcher.Constraint("Horizontal", 1))
sketch5.addConstraint(Sketcher.Constraint("Vertical", 2))
sketch5.addConstraint(Sketcher.Constraint("Horizontal", 3))
sketch5.addConstraint(Sketcher.Constraint("DistanceX", 1, 1, 1, 2, Q("5 mm")))
sketch5.addConstraint(Sketcher.Constraint("DistanceY", 0, 2, 0, 1, Q("35 mm")))
sketch5.addConstraint(Sketcher.Constraint("DistanceX", 0, 2, -1, 1, Q("9.5 mm")))
sketch5.addConstraint(Sketcher.Constraint("DistanceY", 0, 2, -1, 1, Q("17.5 mm")))
pad5 = body13.newObject("PartDesign::Pad", "Pad004")
pad5.Profile = sketch5
pad5.Length = 32
body14 = doc.addObject("PartDesign::Body", "Body013")
body14.AllowCompound = True

sketch6 = body14.newObject("Sketcher::SketchObject", "Sketch005")
sketch6.AttachmentSupport = (doc.getObject("XY_Plane013"), [""])
sketch6.MapMode = "FlatFace"
sketch6.AttachmentOffset = App.Placement(V(0, 0, -15), App.Rotation())
sketch6.addGeometry(Part.LineSegment(V(-16, 7.6, 0), V(-16, -7.6, 0)), False)
sketch6.addGeometry(Part.LineSegment(V(-16, -7.6, 0), V(0, -7.6, 0)), False)
sketch6.addGeometry(Part.LineSegment(V(0, -7.6, 0), V(0, 7.6, 0)), False)
sketch6.addGeometry(Part.LineSegment(V(0, 7.6, 0), V(-16, 7.6, 0)), False)
sketch6.addConstraint(Sketcher.Constraint("Coincident", 0, 2, 1, 1))
sketch6.addConstraint(Sketcher.Constraint("Coincident", 1, 2, 2, 1))
sketch6.addConstraint(Sketcher.Constraint("Coincident", 2, 2, 3, 1))
sketch6.addConstraint(Sketcher.Constraint("Coincident", 3, 2, 0, 1))
sketch6.addConstraint(Sketcher.Constraint("Vertical", 0))
sketch6.addConstraint(Sketcher.Constraint("Horizontal", 1))
sketch6.addConstraint(Sketcher.Constraint("Vertical", 2))
sketch6.addConstraint(Sketcher.Constraint("Horizontal", 3))
sketch6.addConstraint(Sketcher.Constraint("Symmetric", 1, 2, 2, 2, -1, 1))
sketch6.addConstraint(Sketcher.Constraint("DistanceX", 1, 1, 1, 2, Q("16 mm")))
sketch6.addConstraint(Sketcher.Constraint("DistanceY", 0, 2, 0, 1, Q("15.2 mm")))
pad6 = body14.newObject("PartDesign::Pad", "Pad005")
pad6.Profile = sketch6
pad6.Length = 30
doc.recompute()

boolean9 = body14.newObject("PartDesign::Boolean", "Boolean008")
boolean9.Type = "Fuse"
boolean9.addObjects([body3])
doc.recompute()

boolean10 = body14.newObject("PartDesign::Boolean", "Boolean009")
boolean10.Type = "Fuse"
boolean10.addObjects([body6])
doc.recompute()

boolean11 = body14.newObject("PartDesign::Boolean", "Boolean010")
boolean11.Type = "Fuse"
boolean11.addObjects([body9])
doc.recompute()

boolean12 = body14.newObject("PartDesign::Boolean", "Boolean011")
boolean12.Type = "Fuse"
boolean12.addObjects([body12])
doc.recompute()

boolean13 = body14.newObject("PartDesign::Boolean", "Boolean012")
boolean13.Type = "Fuse"
boolean13.addObjects([body13])
body15 = doc.addObject("PartDesign::Body", "Body014")

sketch7 = body15.newObject("Sketcher::SketchObject", "Sketch006")
sketch7.AttachmentSupport = (doc.getObject("XY_Plane014"), [""])
sketch7.MapMode = "FlatFace"
sketch7.AttachmentOffset = App.Placement(V(0, 0, -15), App.Rotation())
sketch7.addGeometry(Part.LineSegment(V(-4.5, 16.65, 0), V(-4.5, 4.95, 0)), False)
sketch7.addGeometry(Part.LineSegment(V(-4.5, 4.95, 0), V(-1.5, 4.95, 0)), False)
sketch7.addGeometry(Part.LineSegment(V(-1.5, 4.95, 0), V(-1.5, 16.65, 0)), False)
sketch7.addGeometry(Part.LineSegment(V(-1.5, 16.65, 0), V(-4.5, 16.65, 0)), False)
sketch7.addConstraint(Sketcher.Constraint("Coincident", 0, 2, 1, 1))
sketch7.addConstraint(Sketcher.Constraint("Coincident", 1, 2, 2, 1))
sketch7.addConstraint(Sketcher.Constraint("Coincident", 2, 2, 3, 1))
sketch7.addConstraint(Sketcher.Constraint("Coincident", 3, 2, 0, 1))
sketch7.addConstraint(Sketcher.Constraint("Vertical", 0))
sketch7.addConstraint(Sketcher.Constraint("Horizontal", 1))
sketch7.addConstraint(Sketcher.Constraint("Vertical", 2))
sketch7.addConstraint(Sketcher.Constraint("Horizontal", 3))
sketch7.addConstraint(Sketcher.Constraint("DistanceX", 1, 1, 1, 2, Q("3 mm")))
sketch7.addConstraint(Sketcher.Constraint("DistanceY", 0, 2, 0, 1, Q("11.7 mm")))
sketch7.addConstraint(Sketcher.Constraint("DistanceX", 0, 2, -1, 1, Q("4.5 mm")))
sketch7.addConstraint(Sketcher.Constraint("DistanceY", -1, 1, 0, 2, Q("4.95 mm")))
pad7 = body15.newObject("PartDesign::Pad", "Pad006")
pad7.Profile = sketch7
pad7.Length = 30
body16 = doc.addObject("PartDesign::Body", "Body015")

sketch8 = body16.newObject("Sketcher::SketchObject", "Sketch007")
sketch8.AttachmentSupport = (doc.getObject("XY_Plane015"), [""])
sketch8.MapMode = "FlatFace"
sketch8.AttachmentOffset = App.Placement(V(0, 0, -15), App.Rotation())
sketch8.addGeometry(Part.LineSegment(V(-4.5, -4.95, 0), V(-4.5, -16.65, 0)), False)
sketch8.addGeometry(Part.LineSegment(V(-4.5, -16.65, 0), V(-1.5, -16.65, 0)), False)
sketch8.addGeometry(Part.LineSegment(V(-1.5, -16.65, 0), V(-1.5, -4.95, 0)), False)
sketch8.addGeometry(Part.LineSegment(V(-1.5, -4.95, 0), V(-4.5, -4.95, 0)), False)
sketch8.addConstraint(Sketcher.Constraint("Coincident", 0, 2, 1, 1))
sketch8.addConstraint(Sketcher.Constraint("Coincident", 1, 2, 2, 1))
sketch8.addConstraint(Sketcher.Constraint("Coincident", 2, 2, 3, 1))
sketch8.addConstraint(Sketcher.Constraint("Coincident", 3, 2, 0, 1))
sketch8.addConstraint(Sketcher.Constraint("Vertical", 0))
sketch8.addConstraint(Sketcher.Constraint("Horizontal", 1))
sketch8.addConstraint(Sketcher.Constraint("Vertical", 2))
sketch8.addConstraint(Sketcher.Constraint("Horizontal", 3))
sketch8.addConstraint(Sketcher.Constraint("DistanceX", 1, 1, 1, 2, Q("3 mm")))
sketch8.addConstraint(Sketcher.Constraint("DistanceY", 0, 2, 0, 1, Q("11.7 mm")))
sketch8.addConstraint(Sketcher.Constraint("DistanceX", 0, 2, -1, 1, Q("4.5 mm")))
sketch8.addConstraint(Sketcher.Constraint("DistanceY", 0, 2, -1, 1, Q("16.65 mm")))
pad8 = body16.newObject("PartDesign::Pad", "Pad007")
pad8.Profile = sketch8
pad8.Length = 30
body17 = doc.addObject("PartDesign::Body", "Body016")

sketch9 = body17.newObject("Sketcher::SketchObject", "Sketch008")
sketch9.AttachmentSupport = (doc.getObject("XY_Plane016"), [""])
sketch9.MapMode = "FlatFace"
sketch9.AttachmentOffset = App.Placement(V(0, 0, -15), App.Rotation())
sketch9.addGeometry(Part.LineSegment(V(-4.6, 9.1, 0), V(-4.6, 7.5, 0)), False)
sketch9.addGeometry(Part.LineSegment(V(-4.6, 7.5, 0), V(-3, 7.5, 0)), False)
sketch9.addGeometry(Part.LineSegment(V(-3, 7.5, 0), V(-3, 9.1, 0)), False)
sketch9.addGeometry(Part.LineSegment(V(-3, 9.1, 0), V(-4.6, 9.1, 0)), False)
sketch9.addConstraint(Sketcher.Constraint("Coincident", 0, 2, 1, 1))
sketch9.addConstraint(Sketcher.Constraint("Coincident", 1, 2, 2, 1))
sketch9.addConstraint(Sketcher.Constraint("Coincident", 2, 2, 3, 1))
sketch9.addConstraint(Sketcher.Constraint("Coincident", 3, 2, 0, 1))
sketch9.addConstraint(Sketcher.Constraint("Vertical", 0))
sketch9.addConstraint(Sketcher.Constraint("Horizontal", 1))
sketch9.addConstraint(Sketcher.Constraint("Vertical", 2))
sketch9.addConstraint(Sketcher.Constraint("Horizontal", 3))
sketch9.addConstraint(Sketcher.Constraint("Equal", 3, 0))
sketch9.addConstraint(Sketcher.Constraint("DistanceX", 1, 1, 1, 2, Q("1.6 mm")))
sketch9.addConstraint(Sketcher.Constraint("DistanceX", 1, 2, -1, 1, Q("3 mm")))
sketch9.addConstraint(Sketcher.Constraint("DistanceY", -1, 1, 0, 2, Q("7.5 mm")))
pad9 = body17.newObject("PartDesign::Pad", "Pad008")
pad9.Profile = sketch9
pad9.Length = 30
body18 = doc.addObject("PartDesign::Body", "Body017")

sketch10 = body18.newObject("Sketcher::SketchObject", "Sketch009")
sketch10.AttachmentSupport = (doc.getObject("XY_Plane017"), [""])
sketch10.MapMode = "FlatFace"
sketch10.AttachmentOffset = App.Placement(V(0, 0, -15), App.Rotation())
sketch10.addGeometry(Part.LineSegment(V(-4.6, -7.5, 0), V(-4.6, -9.1, 0)), False)
sketch10.addGeometry(Part.LineSegment(V(-4.6, -9.1, 0), V(-3, -9.1, 0)), False)
sketch10.addGeometry(Part.LineSegment(V(-3, -9.1, 0), V(-3, -7.5, 0)), False)
sketch10.addGeometry(Part.LineSegment(V(-3, -7.5, 0), V(-4.6, -7.5, 0)), False)
sketch10.addConstraint(Sketcher.Constraint("Coincident", 0, 2, 1, 1))
sketch10.addConstraint(Sketcher.Constraint("Coincident", 1, 2, 2, 1))
sketch10.addConstraint(Sketcher.Constraint("Coincident", 2, 2, 3, 1))
sketch10.addConstraint(Sketcher.Constraint("Coincident", 3, 2, 0, 1))
sketch10.addConstraint(Sketcher.Constraint("Vertical", 0))
sketch10.addConstraint(Sketcher.Constraint("Horizontal", 1))
sketch10.addConstraint(Sketcher.Constraint("Vertical", 2))
sketch10.addConstraint(Sketcher.Constraint("Horizontal", 3))
sketch10.addConstraint(Sketcher.Constraint("Equal", 3, 0))
sketch10.addConstraint(Sketcher.Constraint("DistanceX", 1, 1, 1, 2, Q("1.6 mm")))
sketch10.addConstraint(Sketcher.Constraint("DistanceX", 1, 2, -1, 1, Q("3 mm")))
sketch10.addConstraint(Sketcher.Constraint("DistanceY", 0, 2, -1, 1, Q("9.1 mm")))
pad10 = body18.newObject("PartDesign::Pad", "Pad009")
pad10.Profile = sketch10
pad10.Length = 30
body19 = doc.addObject("PartDesign::Body", "Body018")

sketch11 = body19.newObject("Sketcher::SketchObject", "Sketch010")
sketch11.AttachmentSupport = (doc.getObject("XY_Plane018"), [""])
sketch11.MapMode = "FlatFace"
sketch11.AttachmentOffset = App.Placement(V(0, 0, -15), App.Rotation())
sketch11.addGeometry(Part.Circle(V(0, 0, 0), V(0, 0, 1), 7.6), False)
sketch11.addConstraint(Sketcher.Constraint("Coincident", 0, 3, -1, 1))
sketch11.addConstraint(Sketcher.Constraint("Diameter", 0, Q("15.2 mm")))
pad11 = body19.newObject("PartDesign::Pad", "Pad010")
pad11.Profile = sketch11
pad11.Length = 30
body20 = doc.addObject("PartDesign::Body", "Body019")

sketch12 = body20.newObject("Sketcher::SketchObject", "Sketch011")
sketch12.AttachmentSupport = (doc.getObject("XY_Plane019"), [""])
sketch12.MapMode = "FlatFace"
sketch12.AttachmentOffset = App.Placement(V(0, 0, -15), App.Rotation())
sketch12.addGeometry(Part.Circle(V(0, 0, 0), V(0, 0, 1), 9.2), False)
sketch12.addConstraint(Sketcher.Constraint("Coincident", 0, 3, -1, 1))
sketch12.addConstraint(Sketcher.Constraint("Diameter", 0, Q("18.4 mm")))
pad12 = body20.newObject("PartDesign::Pad", "Pad011")
pad12.Profile = sketch12
pad12.Length = 30
doc.recompute()

boolean14 = body20.newObject("PartDesign::Boolean", "Boolean013")
boolean14.Type = "Cut"
boolean14.addObjects([body19])
doc.recompute()

boolean15 = body20.newObject("PartDesign::Boolean", "Boolean014")
boolean15.Type = "Fuse"
boolean15.addObjects([body15])
doc.recompute()

boolean16 = body20.newObject("PartDesign::Boolean", "Boolean015")
boolean16.Type = "Fuse"
boolean16.addObjects([body16])
doc.recompute()

boolean17 = body20.newObject("PartDesign::Boolean", "Boolean016")
boolean17.Type = "Fuse"
boolean17.addObjects([body17])
doc.recompute()

boolean18 = body20.newObject("PartDesign::Boolean", "Boolean017")
boolean18.Type = "Fuse"
boolean18.addObjects([body18])
doc.recompute()

boolean19 = body20.newObject("PartDesign::Boolean", "Boolean018")
boolean19.Type = "Cut"
boolean19.addObjects([body14])
body21 = doc.addObject("PartDesign::Body", "Body020")
doc.recompute()

body20.Placement = App.Placement(V(0, 0, 0), App.Rotation(V(1, 0, 0), 90))
boolean20 = body21.newObject("PartDesign::Boolean", "Boolean019")
boolean20.Type = "Fuse"
boolean20.addObjects([body20])
body22 = doc.addObject("PartDesign::Body", "Body021")
doc.recompute()

body21.Placement = App.Placement(V(178, 252, 340), App.Rotation(V(0, 0, 1), 90))
boolean21 = body22.newObject("PartDesign::Boolean", "Boolean020")
boolean21.Type = "Fuse"
boolean21.addObjects([body21])

doc.recompute()
